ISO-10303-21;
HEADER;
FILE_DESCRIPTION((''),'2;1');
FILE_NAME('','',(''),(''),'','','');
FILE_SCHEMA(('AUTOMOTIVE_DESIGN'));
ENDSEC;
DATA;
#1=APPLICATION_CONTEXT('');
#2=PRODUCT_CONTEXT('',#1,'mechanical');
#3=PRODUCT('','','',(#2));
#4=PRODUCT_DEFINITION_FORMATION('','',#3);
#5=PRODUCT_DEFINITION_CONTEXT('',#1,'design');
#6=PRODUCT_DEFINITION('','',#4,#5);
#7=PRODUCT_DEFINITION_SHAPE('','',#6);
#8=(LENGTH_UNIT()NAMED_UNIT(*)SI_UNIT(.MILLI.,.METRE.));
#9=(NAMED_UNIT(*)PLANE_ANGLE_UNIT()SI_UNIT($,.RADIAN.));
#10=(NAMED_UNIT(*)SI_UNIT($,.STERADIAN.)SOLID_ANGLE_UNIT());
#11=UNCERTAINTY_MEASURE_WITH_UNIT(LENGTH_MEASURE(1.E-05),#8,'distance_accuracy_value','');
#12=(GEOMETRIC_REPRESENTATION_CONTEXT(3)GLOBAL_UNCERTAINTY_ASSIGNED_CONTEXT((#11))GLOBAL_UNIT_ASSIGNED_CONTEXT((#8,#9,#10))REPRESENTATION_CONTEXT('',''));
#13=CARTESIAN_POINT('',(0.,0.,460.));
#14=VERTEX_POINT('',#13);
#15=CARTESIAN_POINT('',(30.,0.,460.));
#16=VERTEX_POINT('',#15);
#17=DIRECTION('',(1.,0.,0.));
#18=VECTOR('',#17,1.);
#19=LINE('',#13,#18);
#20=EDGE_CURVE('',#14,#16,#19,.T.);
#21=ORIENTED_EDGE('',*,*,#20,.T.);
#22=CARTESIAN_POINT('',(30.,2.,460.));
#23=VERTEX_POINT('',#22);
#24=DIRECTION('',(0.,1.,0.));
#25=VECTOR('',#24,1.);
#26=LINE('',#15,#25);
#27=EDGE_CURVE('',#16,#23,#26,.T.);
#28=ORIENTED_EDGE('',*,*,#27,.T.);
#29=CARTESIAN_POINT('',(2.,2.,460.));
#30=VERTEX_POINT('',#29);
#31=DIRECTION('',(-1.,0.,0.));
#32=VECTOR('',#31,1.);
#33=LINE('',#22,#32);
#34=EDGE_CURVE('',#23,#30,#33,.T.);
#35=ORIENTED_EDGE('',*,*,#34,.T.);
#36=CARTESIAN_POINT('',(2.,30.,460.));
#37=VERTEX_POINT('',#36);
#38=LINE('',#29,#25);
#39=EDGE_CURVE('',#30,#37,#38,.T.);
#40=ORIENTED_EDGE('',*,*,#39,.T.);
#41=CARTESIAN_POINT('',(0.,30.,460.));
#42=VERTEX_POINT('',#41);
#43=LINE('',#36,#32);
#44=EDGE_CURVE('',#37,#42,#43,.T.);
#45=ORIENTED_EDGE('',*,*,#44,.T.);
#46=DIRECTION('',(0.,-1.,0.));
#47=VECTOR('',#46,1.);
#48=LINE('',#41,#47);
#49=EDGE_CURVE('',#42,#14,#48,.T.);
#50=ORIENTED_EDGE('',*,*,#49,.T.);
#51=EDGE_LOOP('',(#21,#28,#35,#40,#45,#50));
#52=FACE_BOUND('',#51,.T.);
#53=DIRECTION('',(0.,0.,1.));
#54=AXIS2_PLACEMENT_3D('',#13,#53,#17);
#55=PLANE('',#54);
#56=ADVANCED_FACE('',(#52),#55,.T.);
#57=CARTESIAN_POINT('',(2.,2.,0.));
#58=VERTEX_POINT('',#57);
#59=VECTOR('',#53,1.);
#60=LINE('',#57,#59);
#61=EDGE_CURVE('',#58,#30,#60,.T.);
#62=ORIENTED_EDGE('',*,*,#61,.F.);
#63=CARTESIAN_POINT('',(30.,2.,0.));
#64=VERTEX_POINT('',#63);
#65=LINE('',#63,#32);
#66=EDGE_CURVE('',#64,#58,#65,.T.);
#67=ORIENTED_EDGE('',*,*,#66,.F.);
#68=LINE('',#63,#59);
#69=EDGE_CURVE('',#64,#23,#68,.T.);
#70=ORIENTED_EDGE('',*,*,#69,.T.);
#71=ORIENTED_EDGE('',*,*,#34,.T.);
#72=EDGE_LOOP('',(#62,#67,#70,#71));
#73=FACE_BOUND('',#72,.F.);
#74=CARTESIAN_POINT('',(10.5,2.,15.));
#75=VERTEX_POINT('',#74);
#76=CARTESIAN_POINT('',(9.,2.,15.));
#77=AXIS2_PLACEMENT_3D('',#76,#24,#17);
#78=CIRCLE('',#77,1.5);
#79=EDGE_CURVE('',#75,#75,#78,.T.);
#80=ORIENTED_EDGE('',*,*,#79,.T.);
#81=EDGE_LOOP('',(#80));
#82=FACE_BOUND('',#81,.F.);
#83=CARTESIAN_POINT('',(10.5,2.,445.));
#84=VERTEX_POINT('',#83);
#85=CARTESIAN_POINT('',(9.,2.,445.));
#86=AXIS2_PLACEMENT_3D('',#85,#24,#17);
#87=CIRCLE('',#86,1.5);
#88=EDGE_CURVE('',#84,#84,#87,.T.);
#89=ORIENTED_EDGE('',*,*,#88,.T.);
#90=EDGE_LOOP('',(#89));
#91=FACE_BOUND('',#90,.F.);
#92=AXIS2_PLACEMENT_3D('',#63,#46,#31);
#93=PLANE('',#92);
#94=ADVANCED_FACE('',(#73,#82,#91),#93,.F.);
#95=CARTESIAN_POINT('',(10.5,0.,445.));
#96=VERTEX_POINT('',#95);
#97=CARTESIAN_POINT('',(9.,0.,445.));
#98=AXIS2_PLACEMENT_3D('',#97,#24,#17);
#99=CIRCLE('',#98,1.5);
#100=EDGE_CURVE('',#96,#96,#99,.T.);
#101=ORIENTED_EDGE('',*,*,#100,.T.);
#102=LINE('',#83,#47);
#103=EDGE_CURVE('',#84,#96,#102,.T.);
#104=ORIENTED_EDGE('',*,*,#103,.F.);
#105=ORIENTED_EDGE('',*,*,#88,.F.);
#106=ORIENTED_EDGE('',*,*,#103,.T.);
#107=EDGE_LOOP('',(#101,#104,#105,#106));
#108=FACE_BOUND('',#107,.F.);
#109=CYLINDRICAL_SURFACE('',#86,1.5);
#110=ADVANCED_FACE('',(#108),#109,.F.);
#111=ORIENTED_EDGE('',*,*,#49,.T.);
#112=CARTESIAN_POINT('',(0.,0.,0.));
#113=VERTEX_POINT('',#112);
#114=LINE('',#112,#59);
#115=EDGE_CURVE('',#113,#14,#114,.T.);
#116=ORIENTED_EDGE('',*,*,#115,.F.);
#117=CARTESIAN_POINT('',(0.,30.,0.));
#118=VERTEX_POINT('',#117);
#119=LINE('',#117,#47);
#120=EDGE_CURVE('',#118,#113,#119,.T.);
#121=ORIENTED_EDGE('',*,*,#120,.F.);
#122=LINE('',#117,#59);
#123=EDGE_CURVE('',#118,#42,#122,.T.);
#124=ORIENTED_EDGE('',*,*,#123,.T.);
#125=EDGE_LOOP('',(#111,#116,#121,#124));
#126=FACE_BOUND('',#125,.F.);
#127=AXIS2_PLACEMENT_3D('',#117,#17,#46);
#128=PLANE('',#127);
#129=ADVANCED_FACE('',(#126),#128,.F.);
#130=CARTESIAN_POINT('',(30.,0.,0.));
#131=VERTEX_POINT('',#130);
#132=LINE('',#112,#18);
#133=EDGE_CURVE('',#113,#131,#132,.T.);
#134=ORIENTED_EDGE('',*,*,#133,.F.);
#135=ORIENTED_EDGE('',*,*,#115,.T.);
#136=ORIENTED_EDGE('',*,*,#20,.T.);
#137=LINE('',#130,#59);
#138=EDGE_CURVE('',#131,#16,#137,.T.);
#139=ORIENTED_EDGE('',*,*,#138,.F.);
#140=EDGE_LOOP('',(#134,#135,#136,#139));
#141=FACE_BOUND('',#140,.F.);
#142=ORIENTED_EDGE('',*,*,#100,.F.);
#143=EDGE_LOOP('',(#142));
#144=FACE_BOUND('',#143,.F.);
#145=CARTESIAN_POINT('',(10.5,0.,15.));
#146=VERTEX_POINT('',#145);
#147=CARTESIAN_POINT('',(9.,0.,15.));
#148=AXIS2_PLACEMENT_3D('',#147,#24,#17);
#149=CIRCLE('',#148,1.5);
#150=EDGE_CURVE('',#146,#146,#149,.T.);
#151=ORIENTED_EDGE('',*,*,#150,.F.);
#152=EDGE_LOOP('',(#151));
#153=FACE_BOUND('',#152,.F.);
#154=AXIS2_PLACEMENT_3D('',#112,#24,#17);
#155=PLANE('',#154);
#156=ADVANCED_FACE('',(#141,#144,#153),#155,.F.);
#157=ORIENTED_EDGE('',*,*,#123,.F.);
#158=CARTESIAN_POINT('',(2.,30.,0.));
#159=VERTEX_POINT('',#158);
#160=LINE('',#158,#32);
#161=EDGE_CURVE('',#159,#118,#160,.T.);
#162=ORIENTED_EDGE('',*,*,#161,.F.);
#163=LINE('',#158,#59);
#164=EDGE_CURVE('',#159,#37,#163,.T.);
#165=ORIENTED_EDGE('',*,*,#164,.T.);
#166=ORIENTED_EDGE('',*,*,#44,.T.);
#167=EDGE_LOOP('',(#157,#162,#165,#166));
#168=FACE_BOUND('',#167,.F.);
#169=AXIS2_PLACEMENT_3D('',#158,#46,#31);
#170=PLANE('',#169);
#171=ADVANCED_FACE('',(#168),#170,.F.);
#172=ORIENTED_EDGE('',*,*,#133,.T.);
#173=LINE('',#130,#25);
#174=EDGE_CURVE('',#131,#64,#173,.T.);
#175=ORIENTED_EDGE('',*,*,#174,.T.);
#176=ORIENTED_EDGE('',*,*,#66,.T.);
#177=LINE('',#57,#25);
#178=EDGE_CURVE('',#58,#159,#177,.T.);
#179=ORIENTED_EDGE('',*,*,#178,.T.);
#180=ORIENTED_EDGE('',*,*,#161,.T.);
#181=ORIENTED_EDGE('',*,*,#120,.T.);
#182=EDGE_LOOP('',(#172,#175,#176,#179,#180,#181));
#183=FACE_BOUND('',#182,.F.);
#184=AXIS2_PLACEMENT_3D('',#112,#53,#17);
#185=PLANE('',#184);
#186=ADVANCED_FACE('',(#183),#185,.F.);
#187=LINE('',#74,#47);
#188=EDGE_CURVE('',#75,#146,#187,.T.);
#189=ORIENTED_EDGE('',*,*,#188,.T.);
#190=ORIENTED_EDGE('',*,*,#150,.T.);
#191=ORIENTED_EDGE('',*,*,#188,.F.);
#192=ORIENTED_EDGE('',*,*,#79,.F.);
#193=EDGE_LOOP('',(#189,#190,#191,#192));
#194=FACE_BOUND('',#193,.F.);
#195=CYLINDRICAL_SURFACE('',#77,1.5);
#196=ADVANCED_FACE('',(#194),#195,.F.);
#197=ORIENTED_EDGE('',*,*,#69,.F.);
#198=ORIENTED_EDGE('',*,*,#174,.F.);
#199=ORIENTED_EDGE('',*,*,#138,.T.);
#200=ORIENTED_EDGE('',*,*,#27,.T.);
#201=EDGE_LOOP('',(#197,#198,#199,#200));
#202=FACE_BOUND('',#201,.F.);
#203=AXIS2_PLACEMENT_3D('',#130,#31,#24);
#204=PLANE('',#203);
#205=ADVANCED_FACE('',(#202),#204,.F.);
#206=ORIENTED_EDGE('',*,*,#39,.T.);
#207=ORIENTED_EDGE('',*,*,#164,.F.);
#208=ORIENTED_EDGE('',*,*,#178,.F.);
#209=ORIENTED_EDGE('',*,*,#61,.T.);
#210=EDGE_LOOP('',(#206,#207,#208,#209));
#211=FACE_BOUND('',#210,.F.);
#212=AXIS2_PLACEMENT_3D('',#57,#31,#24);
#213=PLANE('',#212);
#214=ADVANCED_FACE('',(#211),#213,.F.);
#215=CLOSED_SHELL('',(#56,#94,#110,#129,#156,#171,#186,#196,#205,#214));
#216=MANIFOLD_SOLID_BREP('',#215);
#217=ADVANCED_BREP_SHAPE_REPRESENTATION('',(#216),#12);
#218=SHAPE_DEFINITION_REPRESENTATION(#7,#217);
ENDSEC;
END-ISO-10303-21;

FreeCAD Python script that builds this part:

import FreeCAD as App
import Part
import Sketcher
Q = App.Units.Quantity


def add_polygon(sketch, points):
    """Adds a closed chain of lines whose ends are joined by coincident constraints."""
    first, n = sketch.GeometryCount, len(points)
    for a, b in zip(points, points[1:] + points[:1]):
        sketch.addGeometry(Part.LineSegment(App.Vector(*a, 0), App.Vector(*b, 0)), False)
    for i in range(n):
        sketch.addConstraint(Sketcher.Constraint("Coincident", first + i, 2, first + (i + 1) % n, 1))

doc = App.newDocument("Part")
body = doc.addObject("PartDesign::Body", "Body")

sketch1 = doc.addObject("Sketcher::SketchObject", "Sketch")
body.addObject(sketch1)
sketch1.AttachmentSupport = (doc.XY_Plane, [""])
sketch1.MapMode = "FlatFace"
add_polygon(sketch1, [(0, 30), (0, 0), (30, 0), (30, 2), (2, 2), (2, 30)])
sketch1.addConstraint([
    Sketcher.Constraint("Vertical", 0),
    Sketcher.Constraint("Horizontal", 1),
    Sketcher.Constraint("Vertical", 2),
    Sketcher.Constraint("Horizontal", 3),
    Sketcher.Constraint("Vertical", 4),
    Sketcher.Constraint("Horizontal", 5),
    Sketcher.Constraint("Coincident", 0, 2, -1, 1),
    Sketcher.Constraint("Equal", 1, 0),
    Sketcher.Constraint("Equal", 5, 2),
    Sketcher.Constraint("DistanceX", 1, 1, 1, 2, Q("30 mm")),
    Sketcher.Constraint("DistanceX", 5, 2, 5, 1, Q("2 mm")),
])
pad1 = doc.addObject("PartDesign::Pad", "Pad")
body.addObject(pad1)
pad1.Profile = sketch1
pad1.Length = 460

sketch2 = doc.addObject("Sketcher::SketchObject", "Sketch001")
body.addObject(sketch2)
sketch2.AttachmentSupport = (doc.XZ_Plane, [""])
sketch2.MapMode = "FlatFace"
sketch2.AttachmentOffset = App.Placement(App.Vector(0, 0, -2), App.Rotation())
sketch2.addGeometry([
    Part.Circle(App.Vector(9, 445, 0), App.Vector(0, 0, 1), 1.5),
    Part.Circle(App.Vector(9, 15, 0), App.Vector(0, 0, 1), 1.5),
], False)
sketch2.addConstraint([
    Sketcher.Constraint("Equal", 0, 1),
    Sketcher.Constraint("Vertical", 0, 3, 1, 3),
    Sketcher.Constraint("Diameter", 0, Q("3 mm")),
    Sketcher.Constraint("DistanceY", -1, 1, 1, 3, Q("15 mm")),
    Sketcher.Constraint("DistanceX", -1, 1, 0, 3, Q("9 mm")),
    Sketcher.Constraint("DistanceY", -1, 1, 0, 3, Q("445 mm")),
])
pocket1 = doc.addObject("PartDesign::Pocket", "Pocket")
body.addObject(pocket1)
pocket1.Profile = sketch2
pocket1.Length = 2
pocket1.Reversed = True

doc.recompute()
